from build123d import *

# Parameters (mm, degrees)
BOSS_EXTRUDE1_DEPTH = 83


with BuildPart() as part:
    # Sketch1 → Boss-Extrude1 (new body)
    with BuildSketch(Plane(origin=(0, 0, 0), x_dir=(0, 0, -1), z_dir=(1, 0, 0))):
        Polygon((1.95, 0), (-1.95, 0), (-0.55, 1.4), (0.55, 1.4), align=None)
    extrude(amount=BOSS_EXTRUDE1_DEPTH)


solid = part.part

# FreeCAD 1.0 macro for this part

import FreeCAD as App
import Part
import Sketcher
Q = App.Units.Quantity


def add_polygon(sketch, points):
    """Adds a closed chain of lines whose ends are joined by coincident constraints."""
    first, n = sketch.GeometryCount, len(points)
    for a, b in zip(points, points[1:] + points[:1]):
        sketch.addGeometry(Part.LineSegment(App.Vector(*a, 0), App.Vector(*b, 0)), False)
    for i in range(n):
        sketch.addConstraint(Sketcher.Constraint("Coincident", first + i, 2, first + (i + 1) % n, 1))

doc = App.newDocument("Part")
body = doc.addObject("PartDesign::Body", "Body")

sketch1 = body.newObject("Sketcher::SketchObject", "Sketch")
sketch1.AttachmentSupport = (doc.getObject("YZ_Plane"), [""])
sketch1.MapMode = "FlatFace"
add_polygon(sketch1, [(0, 1.9), (0, -1.9), (1.4, -0.6), (1.4, 0.6)])
sketch1.addConstraint([
    Sketcher.Constraint("Vertical", 0),
    Sketcher.Constraint("Vertical", 2),
    Sketcher.Constraint("Symmetric", 0, 2, 3, 2, -1, 1),
    Sketcher.Constraint("Perpendicular", 1, 3),
    Sketcher.Constraint("Equal", 1, 3),
    Sketcher.Constraint("DistanceY", 0, 2, 0, 1, Q("3.9 mm")),
    Sketcher.Constraint("DistanceY", 2, 1, 2, 2, Q("1.1 mm")),
])
pad1 = body.newObject("PartDesign::Pad", "Pad")
pad1.Profile = sketch1
pad1.Length = 83

doc.recompute()
